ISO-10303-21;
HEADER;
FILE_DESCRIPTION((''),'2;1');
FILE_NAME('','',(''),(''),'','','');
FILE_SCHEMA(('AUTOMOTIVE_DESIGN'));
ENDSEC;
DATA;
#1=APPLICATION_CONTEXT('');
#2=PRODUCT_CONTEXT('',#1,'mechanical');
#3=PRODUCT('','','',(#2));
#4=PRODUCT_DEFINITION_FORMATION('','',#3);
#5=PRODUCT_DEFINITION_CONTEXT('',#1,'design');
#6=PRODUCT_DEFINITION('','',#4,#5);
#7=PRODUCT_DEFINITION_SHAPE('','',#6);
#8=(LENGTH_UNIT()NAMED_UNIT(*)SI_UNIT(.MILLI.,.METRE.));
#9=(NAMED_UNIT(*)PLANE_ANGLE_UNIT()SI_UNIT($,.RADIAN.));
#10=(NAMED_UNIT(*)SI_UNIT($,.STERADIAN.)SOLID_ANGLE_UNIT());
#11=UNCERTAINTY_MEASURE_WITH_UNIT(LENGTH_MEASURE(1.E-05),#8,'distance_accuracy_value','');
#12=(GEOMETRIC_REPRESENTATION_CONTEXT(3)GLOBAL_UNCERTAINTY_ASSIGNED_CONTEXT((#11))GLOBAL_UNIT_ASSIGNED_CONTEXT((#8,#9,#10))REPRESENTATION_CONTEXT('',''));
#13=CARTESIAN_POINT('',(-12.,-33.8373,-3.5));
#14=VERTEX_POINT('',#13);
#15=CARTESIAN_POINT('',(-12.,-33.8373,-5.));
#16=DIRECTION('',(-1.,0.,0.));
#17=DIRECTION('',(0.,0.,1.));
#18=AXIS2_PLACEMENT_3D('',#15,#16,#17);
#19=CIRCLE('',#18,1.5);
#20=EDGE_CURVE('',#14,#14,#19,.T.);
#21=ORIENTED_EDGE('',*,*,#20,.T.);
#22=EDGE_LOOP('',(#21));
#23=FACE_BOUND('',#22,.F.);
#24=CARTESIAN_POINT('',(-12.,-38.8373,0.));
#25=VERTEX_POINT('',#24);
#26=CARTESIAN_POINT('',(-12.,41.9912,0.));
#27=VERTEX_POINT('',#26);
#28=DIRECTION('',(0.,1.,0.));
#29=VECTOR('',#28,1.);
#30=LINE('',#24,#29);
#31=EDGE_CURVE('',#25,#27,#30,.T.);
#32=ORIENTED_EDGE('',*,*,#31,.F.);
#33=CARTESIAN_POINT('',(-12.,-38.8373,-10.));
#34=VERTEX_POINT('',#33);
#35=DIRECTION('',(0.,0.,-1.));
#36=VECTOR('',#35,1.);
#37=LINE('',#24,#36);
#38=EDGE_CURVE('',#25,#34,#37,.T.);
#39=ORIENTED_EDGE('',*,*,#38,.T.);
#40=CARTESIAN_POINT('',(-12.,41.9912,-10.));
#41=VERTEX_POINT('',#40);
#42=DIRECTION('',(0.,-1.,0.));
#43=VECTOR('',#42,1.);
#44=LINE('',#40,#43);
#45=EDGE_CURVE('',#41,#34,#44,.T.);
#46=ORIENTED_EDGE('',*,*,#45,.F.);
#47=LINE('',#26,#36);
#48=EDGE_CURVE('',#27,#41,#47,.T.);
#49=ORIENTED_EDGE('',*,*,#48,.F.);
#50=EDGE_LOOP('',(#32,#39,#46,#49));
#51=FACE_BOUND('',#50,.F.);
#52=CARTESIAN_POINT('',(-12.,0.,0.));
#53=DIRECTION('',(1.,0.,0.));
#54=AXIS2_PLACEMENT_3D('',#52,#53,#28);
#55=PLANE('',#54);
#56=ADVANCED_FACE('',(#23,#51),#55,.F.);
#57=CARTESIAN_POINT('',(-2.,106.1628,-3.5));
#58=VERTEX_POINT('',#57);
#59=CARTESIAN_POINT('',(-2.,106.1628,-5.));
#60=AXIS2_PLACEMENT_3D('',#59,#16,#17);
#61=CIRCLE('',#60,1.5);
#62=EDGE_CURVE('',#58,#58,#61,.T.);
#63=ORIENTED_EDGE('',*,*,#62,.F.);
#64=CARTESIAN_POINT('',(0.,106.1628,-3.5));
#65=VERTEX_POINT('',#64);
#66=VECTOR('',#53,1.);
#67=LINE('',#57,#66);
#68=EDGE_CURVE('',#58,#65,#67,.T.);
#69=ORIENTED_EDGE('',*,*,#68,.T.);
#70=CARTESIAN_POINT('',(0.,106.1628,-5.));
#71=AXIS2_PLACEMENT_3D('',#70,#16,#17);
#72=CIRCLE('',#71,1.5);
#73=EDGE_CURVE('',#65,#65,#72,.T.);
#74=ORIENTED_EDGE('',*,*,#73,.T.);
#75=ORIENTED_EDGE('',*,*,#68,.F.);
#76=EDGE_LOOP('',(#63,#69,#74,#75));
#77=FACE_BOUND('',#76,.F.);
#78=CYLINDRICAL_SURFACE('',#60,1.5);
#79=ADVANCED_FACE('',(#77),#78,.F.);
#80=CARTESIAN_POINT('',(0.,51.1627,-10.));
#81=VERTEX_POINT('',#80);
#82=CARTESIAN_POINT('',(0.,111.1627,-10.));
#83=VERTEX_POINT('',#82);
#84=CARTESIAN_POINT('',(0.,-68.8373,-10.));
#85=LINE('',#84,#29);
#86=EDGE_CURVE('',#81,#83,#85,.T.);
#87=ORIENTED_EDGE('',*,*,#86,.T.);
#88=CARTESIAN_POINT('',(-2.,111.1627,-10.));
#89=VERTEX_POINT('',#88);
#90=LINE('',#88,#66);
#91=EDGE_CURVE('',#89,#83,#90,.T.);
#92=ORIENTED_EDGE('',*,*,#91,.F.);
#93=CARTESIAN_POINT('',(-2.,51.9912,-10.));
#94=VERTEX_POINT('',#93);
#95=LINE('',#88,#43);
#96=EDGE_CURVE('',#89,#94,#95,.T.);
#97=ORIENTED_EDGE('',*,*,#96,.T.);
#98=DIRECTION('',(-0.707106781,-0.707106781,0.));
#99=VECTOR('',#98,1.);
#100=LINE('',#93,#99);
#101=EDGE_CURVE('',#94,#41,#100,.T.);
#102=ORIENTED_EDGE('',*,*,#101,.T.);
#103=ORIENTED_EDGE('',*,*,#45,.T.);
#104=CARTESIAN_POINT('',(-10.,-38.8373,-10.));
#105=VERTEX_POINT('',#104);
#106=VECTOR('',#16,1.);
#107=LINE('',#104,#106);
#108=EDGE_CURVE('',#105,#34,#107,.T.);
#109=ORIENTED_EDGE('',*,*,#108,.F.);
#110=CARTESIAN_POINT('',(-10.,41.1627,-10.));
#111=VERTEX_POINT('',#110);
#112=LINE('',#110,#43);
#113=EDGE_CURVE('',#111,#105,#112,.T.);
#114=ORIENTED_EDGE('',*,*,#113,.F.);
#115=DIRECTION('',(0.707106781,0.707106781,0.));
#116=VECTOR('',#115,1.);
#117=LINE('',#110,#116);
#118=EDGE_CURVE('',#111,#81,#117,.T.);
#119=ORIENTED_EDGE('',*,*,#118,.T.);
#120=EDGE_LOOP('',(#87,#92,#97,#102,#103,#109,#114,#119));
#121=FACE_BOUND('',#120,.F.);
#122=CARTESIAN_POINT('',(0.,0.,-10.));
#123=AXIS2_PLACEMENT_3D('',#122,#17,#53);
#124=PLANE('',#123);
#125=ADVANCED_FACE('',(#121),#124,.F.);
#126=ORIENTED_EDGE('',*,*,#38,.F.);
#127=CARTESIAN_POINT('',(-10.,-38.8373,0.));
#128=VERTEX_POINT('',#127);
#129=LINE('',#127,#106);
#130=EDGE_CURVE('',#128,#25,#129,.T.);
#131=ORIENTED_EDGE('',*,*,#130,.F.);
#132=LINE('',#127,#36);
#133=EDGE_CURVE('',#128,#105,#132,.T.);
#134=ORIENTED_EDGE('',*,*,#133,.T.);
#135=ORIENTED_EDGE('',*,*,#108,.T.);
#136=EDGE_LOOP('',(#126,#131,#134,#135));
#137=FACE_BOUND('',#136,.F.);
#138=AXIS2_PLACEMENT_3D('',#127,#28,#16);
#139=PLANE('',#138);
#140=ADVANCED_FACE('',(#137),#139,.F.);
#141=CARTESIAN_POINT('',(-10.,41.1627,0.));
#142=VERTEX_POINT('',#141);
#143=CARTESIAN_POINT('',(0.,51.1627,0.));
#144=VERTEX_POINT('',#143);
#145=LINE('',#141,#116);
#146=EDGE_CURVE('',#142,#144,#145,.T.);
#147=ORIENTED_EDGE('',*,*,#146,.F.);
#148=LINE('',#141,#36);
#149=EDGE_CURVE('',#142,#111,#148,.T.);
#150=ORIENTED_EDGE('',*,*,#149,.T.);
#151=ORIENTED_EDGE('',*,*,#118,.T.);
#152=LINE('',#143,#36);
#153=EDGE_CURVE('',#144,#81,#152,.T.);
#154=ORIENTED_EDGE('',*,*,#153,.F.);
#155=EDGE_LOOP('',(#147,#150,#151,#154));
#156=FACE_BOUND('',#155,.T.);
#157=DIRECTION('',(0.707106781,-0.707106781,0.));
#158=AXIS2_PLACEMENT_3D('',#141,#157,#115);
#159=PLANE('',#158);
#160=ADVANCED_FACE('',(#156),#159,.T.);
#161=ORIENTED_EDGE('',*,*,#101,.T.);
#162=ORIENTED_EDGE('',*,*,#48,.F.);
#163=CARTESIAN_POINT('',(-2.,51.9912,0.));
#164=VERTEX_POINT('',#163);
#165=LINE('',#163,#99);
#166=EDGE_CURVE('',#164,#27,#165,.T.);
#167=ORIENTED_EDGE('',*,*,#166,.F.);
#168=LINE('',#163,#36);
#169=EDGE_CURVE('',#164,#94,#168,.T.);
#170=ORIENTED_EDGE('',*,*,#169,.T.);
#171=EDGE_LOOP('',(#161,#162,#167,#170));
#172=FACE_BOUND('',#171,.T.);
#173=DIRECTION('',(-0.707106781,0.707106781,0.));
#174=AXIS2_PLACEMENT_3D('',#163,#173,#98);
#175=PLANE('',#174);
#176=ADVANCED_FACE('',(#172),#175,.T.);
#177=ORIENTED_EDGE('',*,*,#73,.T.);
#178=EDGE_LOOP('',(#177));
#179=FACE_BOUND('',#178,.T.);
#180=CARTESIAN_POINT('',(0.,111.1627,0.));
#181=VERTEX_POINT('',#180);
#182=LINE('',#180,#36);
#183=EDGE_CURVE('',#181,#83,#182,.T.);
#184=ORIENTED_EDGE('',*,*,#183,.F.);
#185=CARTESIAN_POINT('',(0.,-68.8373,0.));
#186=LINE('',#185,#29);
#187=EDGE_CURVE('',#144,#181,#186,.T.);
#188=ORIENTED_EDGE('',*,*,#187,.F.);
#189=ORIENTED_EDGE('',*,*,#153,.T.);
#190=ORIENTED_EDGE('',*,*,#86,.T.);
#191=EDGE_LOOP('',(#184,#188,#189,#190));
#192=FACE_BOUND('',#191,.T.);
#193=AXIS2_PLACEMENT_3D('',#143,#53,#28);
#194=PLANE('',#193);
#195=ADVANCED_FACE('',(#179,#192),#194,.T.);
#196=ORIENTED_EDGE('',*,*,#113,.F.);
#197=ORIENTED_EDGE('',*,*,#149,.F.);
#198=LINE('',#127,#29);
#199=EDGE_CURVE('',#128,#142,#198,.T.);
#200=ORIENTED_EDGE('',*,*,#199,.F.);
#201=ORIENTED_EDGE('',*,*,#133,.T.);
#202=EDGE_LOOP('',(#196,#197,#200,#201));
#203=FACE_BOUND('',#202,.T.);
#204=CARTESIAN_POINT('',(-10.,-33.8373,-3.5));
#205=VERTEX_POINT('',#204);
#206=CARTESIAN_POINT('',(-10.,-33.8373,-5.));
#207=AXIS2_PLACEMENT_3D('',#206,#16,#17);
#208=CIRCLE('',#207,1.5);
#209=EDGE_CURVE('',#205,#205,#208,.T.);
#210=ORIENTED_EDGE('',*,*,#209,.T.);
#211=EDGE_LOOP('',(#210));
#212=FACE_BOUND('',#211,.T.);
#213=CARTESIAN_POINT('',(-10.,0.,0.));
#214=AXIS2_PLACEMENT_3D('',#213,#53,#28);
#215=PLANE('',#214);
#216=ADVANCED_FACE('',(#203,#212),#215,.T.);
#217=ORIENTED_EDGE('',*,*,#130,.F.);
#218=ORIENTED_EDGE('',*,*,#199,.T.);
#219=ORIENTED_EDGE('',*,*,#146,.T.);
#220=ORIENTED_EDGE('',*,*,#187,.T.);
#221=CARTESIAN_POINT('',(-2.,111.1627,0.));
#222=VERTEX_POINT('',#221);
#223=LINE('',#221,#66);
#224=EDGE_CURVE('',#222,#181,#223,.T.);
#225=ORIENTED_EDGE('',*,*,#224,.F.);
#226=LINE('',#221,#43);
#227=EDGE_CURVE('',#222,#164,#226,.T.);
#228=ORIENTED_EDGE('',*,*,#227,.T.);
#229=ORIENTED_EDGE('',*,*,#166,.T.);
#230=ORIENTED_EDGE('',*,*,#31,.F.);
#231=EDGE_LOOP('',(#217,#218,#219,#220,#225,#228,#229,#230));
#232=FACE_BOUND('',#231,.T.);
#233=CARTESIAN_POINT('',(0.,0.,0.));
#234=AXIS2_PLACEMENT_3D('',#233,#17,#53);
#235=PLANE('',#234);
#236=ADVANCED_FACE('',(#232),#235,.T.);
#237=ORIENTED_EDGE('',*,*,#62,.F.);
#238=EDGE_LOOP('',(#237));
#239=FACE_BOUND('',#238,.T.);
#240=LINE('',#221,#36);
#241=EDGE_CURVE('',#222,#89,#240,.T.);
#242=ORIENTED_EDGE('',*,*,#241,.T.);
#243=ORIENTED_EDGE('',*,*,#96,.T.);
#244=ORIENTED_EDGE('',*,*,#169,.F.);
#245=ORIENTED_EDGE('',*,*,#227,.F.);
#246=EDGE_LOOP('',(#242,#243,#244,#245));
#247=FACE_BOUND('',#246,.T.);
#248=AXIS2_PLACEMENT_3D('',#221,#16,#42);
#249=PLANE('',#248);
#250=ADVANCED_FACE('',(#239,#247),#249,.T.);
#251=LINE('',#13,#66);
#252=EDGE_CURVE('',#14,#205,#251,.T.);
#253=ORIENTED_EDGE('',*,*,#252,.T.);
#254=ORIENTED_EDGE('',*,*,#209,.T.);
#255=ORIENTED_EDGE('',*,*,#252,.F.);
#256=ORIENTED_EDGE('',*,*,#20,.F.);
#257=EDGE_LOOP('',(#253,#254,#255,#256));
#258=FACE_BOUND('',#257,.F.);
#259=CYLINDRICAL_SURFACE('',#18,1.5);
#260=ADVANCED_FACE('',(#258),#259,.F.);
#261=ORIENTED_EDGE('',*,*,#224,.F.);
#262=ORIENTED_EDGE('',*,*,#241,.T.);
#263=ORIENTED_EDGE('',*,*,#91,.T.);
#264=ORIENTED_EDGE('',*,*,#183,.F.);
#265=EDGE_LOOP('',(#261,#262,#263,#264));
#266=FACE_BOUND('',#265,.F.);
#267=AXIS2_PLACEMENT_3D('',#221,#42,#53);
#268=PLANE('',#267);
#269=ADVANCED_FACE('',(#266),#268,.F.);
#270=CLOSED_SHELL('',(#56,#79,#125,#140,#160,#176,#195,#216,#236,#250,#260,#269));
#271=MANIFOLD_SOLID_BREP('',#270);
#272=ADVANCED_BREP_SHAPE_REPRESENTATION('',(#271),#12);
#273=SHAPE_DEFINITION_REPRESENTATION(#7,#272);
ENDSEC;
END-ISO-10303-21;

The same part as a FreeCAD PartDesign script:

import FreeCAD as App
import Part
import Sketcher
Q = App.Units.Quantity


def add_polygon(sketch, points):
    """Adds a closed chain of lines whose ends are joined by coincident constraints."""
    first, n = sketch.GeometryCount, len(points)
    for a, b in zip(points, points[1:] + points[:1]):
        sketch.addGeometry(Part.LineSegment(App.Vector(*a, 0), App.Vector(*b, 0)), False)
    for i in range(n):
        sketch.addConstraint(Sketcher.Constraint("Coincident", first + i, 2, first + (i + 1) % n, 1))

doc = App.newDocument("Part")
body = doc.addObject("PartDesign::Body", "Body")

# Sketch on XY plane
sketch1 = body.newObject("Sketcher::SketchObject", "Sketch")
sketch1.AttachmentSupport = (doc.getObject("XY_Plane"), [""])
sketch1.MapMode = "FlatFace"
add_polygon(sketch1, [(-12, 41.9912), (-12, -38.8373), (-10, -38.8373), (-10, 41.1627), (0, 51.1627), (0, 111.1627), (-2, 111.1627), (-2, 51.9912)])  # lines 0-7
sketch1.addConstraint([
    Sketcher.Constraint("Vertical", 0),
    Sketcher.Constraint("Horizontal", 1),
    Sketcher.Constraint("Vertical", 2),
    Sketcher.Constraint("Vertical", 4),
    Sketcher.Constraint("Horizontal", 5),
    Sketcher.Constraint("Vertical", 6),
    Sketcher.Constraint("PointOnObject", 3, 2, -2),
    Sketcher.Constraint("Parallel", 3, 7),
    Sketcher.Constraint("Equal", 1, 5),
    Sketcher.Constraint("DistanceX", 1, 1, 1, 2, Q("2 mm")),
    Sketcher.Constraint("DistanceY", 2, 1, 2, 2, Q("80 mm")),
    Sketcher.Constraint("DistanceY", 4, 1, 4, 2, Q("60 mm")),
    Sketcher.Constraint("DistanceX", 1, 2, -1, 1, Q("10 mm")),
    Sketcher.Constraint("DistanceY", 2, 2, 3, 2, Q("10 mm")),
    Sketcher.Constraint("DistanceY", 0, 2, 0, 1, Q("80.8285 mm")),
    Sketcher.Constraint("DistanceY", 0, 2, -1, 1, Q("38.8373 mm")),
])
pad1 = body.newObject("PartDesign::Pad", "Pad")
pad1.Profile = sketch1
pad1.Length = 10
pad1.Reversed = True

# Sketch on YZ plane
sketch2 = body.newObject("Sketcher::SketchObject", "Sketch001")
sketch2.AttachmentSupport = (doc.getObject("YZ_Plane"), [""])
sketch2.MapMode = "FlatFace"
sketch2.AttachmentOffset = App.Placement(App.Vector(0, 0, -12), App.Rotation())
sketch2.addGeometry(Part.Circle(App.Vector(-33.8373, -5, 0), App.Vector(0, 0, 1), 1.5), False)
sketch2.addConstraint([
    Sketcher.Constraint("Diameter", 0, Q("3 mm")),
    Sketcher.Constraint("DistanceY", 0, 3, -1, 1, Q("5 mm")),
    Sketcher.Constraint("DistanceX", 0, 3, -1, 1, Q("33.8373 mm")),
])
pocket1 = body.newObject("PartDesign::Pocket", "Pocket")
pocket1.Profile = sketch2
pocket1.Length = 5
pocket1.Reversed = True

# Sketch on YZ plane
sketch3 = body.newObject("Sketcher::SketchObject", "Sketch002")
sketch3.AttachmentSupport = (doc.getObject("YZ_Plane"), [""])
sketch3.MapMode = "FlatFace"
sketch3.AttachmentOffset = App.Placement(App.Vector(0, 0, -2), App.Rotation())
sketch3.addGeometry(Part.Circle(App.Vector(106.1628, -5, 0), App.Vector(0, 0, 1), 1.5), False)
sketch3.addConstraint([
    Sketcher.Constraint("Diameter", 0, Q("3 mm")),
    Sketcher.Constraint("DistanceY", 0, 3, -1, 1, Q("5 mm")),
    Sketcher.Constraint("DistanceX", -1, 1, 0, 3, Q("106.1628 mm")),
])
pocket2 = body.newObject("PartDesign::Pocket", "Pocket001")
pocket2.Profile = sketch3
pocket2.Length = 5
pocket2.Reversed = True

doc.recompute()
